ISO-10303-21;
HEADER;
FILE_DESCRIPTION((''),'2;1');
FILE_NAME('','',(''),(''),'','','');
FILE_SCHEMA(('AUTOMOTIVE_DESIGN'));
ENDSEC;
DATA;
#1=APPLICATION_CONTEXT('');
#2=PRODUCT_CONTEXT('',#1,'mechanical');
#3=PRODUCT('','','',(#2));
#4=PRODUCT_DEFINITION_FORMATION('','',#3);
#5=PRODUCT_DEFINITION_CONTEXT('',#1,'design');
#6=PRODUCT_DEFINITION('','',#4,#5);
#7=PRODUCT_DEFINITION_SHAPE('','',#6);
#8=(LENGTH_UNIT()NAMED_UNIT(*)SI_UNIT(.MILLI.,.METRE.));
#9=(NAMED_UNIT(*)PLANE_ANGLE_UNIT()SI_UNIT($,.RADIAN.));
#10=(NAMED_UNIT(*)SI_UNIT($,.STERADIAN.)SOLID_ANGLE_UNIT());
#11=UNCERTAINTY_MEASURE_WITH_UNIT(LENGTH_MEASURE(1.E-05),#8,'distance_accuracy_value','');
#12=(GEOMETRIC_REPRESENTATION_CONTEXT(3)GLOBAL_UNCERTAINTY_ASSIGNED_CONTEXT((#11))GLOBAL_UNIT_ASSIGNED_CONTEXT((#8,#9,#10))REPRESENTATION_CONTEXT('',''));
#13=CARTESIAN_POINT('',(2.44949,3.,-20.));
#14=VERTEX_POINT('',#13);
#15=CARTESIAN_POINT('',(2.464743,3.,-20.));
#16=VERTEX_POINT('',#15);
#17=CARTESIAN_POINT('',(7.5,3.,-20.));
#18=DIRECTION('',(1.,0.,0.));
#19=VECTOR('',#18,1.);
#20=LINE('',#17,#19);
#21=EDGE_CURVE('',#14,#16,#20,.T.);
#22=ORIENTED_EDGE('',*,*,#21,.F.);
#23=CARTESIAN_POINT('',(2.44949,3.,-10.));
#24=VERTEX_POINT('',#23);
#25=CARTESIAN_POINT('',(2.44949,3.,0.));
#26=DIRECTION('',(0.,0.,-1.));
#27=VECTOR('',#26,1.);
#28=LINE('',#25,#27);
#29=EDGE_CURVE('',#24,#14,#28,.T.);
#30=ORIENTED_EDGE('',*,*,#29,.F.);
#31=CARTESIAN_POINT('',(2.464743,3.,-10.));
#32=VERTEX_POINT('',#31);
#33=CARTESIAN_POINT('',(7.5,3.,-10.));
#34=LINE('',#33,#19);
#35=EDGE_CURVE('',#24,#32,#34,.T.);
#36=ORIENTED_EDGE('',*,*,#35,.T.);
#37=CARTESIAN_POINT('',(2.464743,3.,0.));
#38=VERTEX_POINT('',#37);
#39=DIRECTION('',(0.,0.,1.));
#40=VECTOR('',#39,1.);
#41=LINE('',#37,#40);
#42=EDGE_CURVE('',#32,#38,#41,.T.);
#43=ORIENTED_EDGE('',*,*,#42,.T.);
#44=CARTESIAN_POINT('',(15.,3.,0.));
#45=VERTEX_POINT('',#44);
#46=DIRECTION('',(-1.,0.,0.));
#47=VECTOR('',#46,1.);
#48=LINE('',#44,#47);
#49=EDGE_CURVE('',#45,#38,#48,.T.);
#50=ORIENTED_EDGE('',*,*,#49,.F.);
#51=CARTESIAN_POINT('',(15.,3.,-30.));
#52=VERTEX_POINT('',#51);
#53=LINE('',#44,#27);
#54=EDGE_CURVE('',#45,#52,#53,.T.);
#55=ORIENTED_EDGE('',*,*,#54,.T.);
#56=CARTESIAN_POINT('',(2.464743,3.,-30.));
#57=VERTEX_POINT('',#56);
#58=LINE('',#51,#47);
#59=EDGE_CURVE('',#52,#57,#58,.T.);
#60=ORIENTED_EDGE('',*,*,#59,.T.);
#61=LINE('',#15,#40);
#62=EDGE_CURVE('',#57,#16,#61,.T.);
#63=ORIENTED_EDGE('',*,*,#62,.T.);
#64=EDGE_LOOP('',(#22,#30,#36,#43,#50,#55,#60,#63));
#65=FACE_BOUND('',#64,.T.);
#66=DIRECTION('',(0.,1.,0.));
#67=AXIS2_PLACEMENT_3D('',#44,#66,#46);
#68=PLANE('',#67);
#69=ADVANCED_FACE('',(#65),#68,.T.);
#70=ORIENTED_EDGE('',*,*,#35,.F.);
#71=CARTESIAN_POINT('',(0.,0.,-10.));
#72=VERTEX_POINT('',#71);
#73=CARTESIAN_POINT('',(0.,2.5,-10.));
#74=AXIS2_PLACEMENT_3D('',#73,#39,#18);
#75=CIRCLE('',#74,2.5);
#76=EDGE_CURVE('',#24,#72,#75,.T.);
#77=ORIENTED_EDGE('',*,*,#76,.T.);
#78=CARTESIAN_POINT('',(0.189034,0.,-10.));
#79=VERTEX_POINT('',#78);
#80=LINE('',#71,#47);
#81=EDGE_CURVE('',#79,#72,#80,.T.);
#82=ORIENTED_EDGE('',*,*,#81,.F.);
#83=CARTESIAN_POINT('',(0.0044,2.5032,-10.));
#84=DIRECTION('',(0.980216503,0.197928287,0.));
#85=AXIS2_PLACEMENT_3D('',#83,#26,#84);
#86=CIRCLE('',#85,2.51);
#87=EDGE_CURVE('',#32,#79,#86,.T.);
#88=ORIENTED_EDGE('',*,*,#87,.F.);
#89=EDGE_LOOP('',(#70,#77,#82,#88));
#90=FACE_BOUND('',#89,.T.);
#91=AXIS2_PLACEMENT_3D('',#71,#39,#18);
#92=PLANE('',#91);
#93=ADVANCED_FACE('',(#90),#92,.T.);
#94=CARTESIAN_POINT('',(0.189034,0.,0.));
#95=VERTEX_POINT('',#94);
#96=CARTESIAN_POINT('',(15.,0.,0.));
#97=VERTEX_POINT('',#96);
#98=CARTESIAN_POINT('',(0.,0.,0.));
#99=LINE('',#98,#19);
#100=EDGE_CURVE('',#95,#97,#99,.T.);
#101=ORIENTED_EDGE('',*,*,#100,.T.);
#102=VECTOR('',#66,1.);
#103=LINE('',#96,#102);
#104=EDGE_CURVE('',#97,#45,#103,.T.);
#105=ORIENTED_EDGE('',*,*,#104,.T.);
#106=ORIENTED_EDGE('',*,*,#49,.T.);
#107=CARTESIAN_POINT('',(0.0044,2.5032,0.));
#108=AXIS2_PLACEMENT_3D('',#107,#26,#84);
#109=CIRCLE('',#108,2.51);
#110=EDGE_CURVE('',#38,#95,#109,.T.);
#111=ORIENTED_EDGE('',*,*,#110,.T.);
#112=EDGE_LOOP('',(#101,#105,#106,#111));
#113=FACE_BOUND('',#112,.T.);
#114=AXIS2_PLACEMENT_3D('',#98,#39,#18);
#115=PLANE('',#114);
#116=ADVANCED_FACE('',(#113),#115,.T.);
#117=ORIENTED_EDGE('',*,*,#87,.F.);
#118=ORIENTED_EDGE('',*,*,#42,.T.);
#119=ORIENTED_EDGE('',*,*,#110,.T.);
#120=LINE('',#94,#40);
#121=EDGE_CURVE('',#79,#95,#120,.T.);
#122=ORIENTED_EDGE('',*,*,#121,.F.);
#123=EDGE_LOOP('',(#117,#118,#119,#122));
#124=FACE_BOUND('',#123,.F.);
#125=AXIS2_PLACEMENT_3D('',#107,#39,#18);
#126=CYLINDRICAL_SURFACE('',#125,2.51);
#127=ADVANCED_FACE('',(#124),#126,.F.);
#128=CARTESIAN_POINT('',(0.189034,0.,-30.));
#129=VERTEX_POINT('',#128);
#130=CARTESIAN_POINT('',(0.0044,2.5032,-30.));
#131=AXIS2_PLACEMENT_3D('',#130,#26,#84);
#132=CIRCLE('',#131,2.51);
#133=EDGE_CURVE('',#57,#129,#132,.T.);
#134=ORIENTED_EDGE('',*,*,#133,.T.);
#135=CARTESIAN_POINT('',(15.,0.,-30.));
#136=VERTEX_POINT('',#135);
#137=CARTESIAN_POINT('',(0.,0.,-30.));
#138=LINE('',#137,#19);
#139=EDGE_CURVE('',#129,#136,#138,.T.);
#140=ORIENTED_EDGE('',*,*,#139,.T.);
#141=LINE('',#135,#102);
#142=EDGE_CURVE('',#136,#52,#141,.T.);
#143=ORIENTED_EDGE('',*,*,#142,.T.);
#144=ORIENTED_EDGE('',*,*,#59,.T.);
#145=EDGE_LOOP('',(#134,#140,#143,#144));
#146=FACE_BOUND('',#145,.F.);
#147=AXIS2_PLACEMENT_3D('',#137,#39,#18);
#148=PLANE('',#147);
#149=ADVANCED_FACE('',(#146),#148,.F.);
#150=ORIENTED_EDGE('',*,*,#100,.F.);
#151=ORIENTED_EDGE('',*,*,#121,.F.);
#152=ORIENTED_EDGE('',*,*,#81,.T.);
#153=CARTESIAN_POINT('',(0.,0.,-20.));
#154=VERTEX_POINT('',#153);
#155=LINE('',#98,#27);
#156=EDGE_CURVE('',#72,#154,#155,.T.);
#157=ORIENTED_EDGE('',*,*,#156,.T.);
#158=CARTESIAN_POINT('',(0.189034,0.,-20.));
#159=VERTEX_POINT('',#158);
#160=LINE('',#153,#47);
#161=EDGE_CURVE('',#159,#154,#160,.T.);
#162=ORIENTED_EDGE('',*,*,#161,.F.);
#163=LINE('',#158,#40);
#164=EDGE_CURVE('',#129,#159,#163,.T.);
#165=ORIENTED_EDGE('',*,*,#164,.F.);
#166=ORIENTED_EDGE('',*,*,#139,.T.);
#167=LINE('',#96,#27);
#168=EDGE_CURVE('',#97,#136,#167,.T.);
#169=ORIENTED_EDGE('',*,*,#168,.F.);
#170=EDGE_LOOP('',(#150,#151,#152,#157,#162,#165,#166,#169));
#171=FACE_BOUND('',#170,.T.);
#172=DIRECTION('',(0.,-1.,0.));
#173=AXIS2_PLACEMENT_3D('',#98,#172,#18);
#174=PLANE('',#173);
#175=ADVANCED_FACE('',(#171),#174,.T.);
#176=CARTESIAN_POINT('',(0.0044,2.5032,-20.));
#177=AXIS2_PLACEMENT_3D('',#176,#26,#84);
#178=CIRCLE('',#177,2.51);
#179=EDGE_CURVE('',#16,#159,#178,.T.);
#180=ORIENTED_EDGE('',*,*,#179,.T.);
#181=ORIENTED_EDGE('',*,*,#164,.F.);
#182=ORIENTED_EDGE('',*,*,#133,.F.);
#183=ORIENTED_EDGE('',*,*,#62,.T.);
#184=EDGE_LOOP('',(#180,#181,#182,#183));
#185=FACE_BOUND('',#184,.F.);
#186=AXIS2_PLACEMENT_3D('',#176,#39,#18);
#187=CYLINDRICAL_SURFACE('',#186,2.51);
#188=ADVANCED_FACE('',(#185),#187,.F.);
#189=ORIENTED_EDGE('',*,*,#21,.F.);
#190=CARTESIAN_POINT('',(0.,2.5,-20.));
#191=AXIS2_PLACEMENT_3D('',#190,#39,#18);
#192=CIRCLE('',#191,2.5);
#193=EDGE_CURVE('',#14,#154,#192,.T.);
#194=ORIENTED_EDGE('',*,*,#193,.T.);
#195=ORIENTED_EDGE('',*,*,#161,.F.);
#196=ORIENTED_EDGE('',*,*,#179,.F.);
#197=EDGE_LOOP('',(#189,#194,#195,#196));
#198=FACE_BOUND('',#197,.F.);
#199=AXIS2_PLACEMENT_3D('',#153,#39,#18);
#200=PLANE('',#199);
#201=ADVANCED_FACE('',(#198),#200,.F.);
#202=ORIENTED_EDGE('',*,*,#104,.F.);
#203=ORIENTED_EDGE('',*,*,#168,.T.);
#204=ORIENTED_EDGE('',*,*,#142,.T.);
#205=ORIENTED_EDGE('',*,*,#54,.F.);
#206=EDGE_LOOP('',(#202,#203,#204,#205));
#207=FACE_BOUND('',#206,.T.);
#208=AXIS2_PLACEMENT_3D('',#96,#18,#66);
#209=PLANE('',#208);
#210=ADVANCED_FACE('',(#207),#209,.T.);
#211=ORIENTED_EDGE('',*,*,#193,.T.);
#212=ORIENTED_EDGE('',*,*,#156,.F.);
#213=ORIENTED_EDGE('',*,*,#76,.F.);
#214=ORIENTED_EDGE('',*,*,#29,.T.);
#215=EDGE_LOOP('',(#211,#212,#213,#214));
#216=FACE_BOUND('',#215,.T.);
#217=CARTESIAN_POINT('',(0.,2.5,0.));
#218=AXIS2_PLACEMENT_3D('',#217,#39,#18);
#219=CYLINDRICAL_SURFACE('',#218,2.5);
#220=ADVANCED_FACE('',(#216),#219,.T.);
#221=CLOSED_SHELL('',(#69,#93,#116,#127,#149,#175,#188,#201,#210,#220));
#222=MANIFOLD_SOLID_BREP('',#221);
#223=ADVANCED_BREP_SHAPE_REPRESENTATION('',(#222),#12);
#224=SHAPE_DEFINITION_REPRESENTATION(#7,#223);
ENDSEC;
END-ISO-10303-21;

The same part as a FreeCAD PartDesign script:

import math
import FreeCAD as App
import Part
import Sketcher
from FreeCAD import Vector
Q = App.Units.Quantity

doc = App.newDocument("Part")
body = doc.addObject("PartDesign::Body", "Body")

sketch1 = body.newObject("Sketcher::SketchObject", "Sketch")
sketch1.AttachmentSupport = (doc.getObject("XY_Plane"), [""])
sketch1.MapMode = "FlatFace"
sketch1.addGeometry(Part.LineSegment(Vector(15, 3, 0), Vector(2.4, 3, 0)), False)
sketch1.addGeometry(Part.ArcOfCircle(Part.Circle(Vector(0, 2.5, 0), Vector(0, 0, 1), 2.5), math.radians(12), math.radians(270)), False)
sketch1.addGeometry(Part.LineSegment(Vector(0, 0, 0), Vector(15, 0, 0)), False)
sketch1.addGeometry(Part.LineSegment(Vector(15, 0, 0), Vector(15, 3, 0)), False)
sketch1.addConstraint(Sketcher.Constraint("Coincident", 0, 2, 1, 1))
sketch1.addConstraint(Sketcher.Constraint("Tangent", 1, 2, 2, 1))
sketch1.addConstraint(Sketcher.Constraint("Coincident", 2, 2, 3, 1))
sketch1.addConstraint(Sketcher.Constraint("Coincident", 3, 2, 0, 1))
sketch1.addConstraint(Sketcher.Constraint("Horizontal", 0))
sketch1.addConstraint(Sketcher.Constraint("Horizontal", 2))
sketch1.addConstraint(Sketcher.Constraint("Vertical", 3))
sketch1.addConstraint(Sketcher.Constraint("Coincident", 1, 2, -1, 1))
sketch1.addConstraint(Sketcher.Constraint("Radius", 1, Q("2.5 mm")))
sketch1.addConstraint(Sketcher.Constraint("DistanceX", 2, 1, 2, 2, Q("15 mm")))
sketch1.addConstraint(Sketcher.Constraint("DistanceY", 3, 1, 3, 2, Q("3 mm")))
pad1 = body.newObject("PartDesign::Pad", "Pad")
pad1.Profile = sketch1
pad1.Length = 30
pad1.Reversed = True

sketch2 = body.newObject("Sketcher::SketchObject", "Sketch001")
sketch2.AttachmentSupport = (doc.getObject("XY_Plane"), [""])
sketch2.MapMode = "FlatFace"
sketch2.addGeometry(Part.Circle(Vector(0, 2.5, 0), Vector(0, 0, 1), 2.5), False)
sketch2.addConstraint(Sketcher.Constraint("Diameter", 0, Q("5.02 mm")))
sketch2.addConstraint(Sketcher.Constraint("DistanceX", -1, 1, 0, 3, Q("0.0044 mm")))
sketch2.addConstraint(Sketcher.Constraint("DistanceY", -1, 1, 0, 3, Q("2.5032 mm")))
pocket1 = body.newObject("PartDesign::Pocket", "Pocket")
pocket1.Profile = sketch2
pocket1.Length = 10
doc.recompute()

linearpattern = body.newObject("PartDesign::LinearPattern", "LinearPattern")
linearpattern.Originals = [pocket1]
linearpattern.Direction = (doc.getObject("Z_Axis"), [""])
linearpattern.Mode = "offset"
linearpattern.Offset = 20
linearpattern.Occurrences = 2
linearpattern.Reversed = True
body.Tip = linearpattern

doc.recompute()
